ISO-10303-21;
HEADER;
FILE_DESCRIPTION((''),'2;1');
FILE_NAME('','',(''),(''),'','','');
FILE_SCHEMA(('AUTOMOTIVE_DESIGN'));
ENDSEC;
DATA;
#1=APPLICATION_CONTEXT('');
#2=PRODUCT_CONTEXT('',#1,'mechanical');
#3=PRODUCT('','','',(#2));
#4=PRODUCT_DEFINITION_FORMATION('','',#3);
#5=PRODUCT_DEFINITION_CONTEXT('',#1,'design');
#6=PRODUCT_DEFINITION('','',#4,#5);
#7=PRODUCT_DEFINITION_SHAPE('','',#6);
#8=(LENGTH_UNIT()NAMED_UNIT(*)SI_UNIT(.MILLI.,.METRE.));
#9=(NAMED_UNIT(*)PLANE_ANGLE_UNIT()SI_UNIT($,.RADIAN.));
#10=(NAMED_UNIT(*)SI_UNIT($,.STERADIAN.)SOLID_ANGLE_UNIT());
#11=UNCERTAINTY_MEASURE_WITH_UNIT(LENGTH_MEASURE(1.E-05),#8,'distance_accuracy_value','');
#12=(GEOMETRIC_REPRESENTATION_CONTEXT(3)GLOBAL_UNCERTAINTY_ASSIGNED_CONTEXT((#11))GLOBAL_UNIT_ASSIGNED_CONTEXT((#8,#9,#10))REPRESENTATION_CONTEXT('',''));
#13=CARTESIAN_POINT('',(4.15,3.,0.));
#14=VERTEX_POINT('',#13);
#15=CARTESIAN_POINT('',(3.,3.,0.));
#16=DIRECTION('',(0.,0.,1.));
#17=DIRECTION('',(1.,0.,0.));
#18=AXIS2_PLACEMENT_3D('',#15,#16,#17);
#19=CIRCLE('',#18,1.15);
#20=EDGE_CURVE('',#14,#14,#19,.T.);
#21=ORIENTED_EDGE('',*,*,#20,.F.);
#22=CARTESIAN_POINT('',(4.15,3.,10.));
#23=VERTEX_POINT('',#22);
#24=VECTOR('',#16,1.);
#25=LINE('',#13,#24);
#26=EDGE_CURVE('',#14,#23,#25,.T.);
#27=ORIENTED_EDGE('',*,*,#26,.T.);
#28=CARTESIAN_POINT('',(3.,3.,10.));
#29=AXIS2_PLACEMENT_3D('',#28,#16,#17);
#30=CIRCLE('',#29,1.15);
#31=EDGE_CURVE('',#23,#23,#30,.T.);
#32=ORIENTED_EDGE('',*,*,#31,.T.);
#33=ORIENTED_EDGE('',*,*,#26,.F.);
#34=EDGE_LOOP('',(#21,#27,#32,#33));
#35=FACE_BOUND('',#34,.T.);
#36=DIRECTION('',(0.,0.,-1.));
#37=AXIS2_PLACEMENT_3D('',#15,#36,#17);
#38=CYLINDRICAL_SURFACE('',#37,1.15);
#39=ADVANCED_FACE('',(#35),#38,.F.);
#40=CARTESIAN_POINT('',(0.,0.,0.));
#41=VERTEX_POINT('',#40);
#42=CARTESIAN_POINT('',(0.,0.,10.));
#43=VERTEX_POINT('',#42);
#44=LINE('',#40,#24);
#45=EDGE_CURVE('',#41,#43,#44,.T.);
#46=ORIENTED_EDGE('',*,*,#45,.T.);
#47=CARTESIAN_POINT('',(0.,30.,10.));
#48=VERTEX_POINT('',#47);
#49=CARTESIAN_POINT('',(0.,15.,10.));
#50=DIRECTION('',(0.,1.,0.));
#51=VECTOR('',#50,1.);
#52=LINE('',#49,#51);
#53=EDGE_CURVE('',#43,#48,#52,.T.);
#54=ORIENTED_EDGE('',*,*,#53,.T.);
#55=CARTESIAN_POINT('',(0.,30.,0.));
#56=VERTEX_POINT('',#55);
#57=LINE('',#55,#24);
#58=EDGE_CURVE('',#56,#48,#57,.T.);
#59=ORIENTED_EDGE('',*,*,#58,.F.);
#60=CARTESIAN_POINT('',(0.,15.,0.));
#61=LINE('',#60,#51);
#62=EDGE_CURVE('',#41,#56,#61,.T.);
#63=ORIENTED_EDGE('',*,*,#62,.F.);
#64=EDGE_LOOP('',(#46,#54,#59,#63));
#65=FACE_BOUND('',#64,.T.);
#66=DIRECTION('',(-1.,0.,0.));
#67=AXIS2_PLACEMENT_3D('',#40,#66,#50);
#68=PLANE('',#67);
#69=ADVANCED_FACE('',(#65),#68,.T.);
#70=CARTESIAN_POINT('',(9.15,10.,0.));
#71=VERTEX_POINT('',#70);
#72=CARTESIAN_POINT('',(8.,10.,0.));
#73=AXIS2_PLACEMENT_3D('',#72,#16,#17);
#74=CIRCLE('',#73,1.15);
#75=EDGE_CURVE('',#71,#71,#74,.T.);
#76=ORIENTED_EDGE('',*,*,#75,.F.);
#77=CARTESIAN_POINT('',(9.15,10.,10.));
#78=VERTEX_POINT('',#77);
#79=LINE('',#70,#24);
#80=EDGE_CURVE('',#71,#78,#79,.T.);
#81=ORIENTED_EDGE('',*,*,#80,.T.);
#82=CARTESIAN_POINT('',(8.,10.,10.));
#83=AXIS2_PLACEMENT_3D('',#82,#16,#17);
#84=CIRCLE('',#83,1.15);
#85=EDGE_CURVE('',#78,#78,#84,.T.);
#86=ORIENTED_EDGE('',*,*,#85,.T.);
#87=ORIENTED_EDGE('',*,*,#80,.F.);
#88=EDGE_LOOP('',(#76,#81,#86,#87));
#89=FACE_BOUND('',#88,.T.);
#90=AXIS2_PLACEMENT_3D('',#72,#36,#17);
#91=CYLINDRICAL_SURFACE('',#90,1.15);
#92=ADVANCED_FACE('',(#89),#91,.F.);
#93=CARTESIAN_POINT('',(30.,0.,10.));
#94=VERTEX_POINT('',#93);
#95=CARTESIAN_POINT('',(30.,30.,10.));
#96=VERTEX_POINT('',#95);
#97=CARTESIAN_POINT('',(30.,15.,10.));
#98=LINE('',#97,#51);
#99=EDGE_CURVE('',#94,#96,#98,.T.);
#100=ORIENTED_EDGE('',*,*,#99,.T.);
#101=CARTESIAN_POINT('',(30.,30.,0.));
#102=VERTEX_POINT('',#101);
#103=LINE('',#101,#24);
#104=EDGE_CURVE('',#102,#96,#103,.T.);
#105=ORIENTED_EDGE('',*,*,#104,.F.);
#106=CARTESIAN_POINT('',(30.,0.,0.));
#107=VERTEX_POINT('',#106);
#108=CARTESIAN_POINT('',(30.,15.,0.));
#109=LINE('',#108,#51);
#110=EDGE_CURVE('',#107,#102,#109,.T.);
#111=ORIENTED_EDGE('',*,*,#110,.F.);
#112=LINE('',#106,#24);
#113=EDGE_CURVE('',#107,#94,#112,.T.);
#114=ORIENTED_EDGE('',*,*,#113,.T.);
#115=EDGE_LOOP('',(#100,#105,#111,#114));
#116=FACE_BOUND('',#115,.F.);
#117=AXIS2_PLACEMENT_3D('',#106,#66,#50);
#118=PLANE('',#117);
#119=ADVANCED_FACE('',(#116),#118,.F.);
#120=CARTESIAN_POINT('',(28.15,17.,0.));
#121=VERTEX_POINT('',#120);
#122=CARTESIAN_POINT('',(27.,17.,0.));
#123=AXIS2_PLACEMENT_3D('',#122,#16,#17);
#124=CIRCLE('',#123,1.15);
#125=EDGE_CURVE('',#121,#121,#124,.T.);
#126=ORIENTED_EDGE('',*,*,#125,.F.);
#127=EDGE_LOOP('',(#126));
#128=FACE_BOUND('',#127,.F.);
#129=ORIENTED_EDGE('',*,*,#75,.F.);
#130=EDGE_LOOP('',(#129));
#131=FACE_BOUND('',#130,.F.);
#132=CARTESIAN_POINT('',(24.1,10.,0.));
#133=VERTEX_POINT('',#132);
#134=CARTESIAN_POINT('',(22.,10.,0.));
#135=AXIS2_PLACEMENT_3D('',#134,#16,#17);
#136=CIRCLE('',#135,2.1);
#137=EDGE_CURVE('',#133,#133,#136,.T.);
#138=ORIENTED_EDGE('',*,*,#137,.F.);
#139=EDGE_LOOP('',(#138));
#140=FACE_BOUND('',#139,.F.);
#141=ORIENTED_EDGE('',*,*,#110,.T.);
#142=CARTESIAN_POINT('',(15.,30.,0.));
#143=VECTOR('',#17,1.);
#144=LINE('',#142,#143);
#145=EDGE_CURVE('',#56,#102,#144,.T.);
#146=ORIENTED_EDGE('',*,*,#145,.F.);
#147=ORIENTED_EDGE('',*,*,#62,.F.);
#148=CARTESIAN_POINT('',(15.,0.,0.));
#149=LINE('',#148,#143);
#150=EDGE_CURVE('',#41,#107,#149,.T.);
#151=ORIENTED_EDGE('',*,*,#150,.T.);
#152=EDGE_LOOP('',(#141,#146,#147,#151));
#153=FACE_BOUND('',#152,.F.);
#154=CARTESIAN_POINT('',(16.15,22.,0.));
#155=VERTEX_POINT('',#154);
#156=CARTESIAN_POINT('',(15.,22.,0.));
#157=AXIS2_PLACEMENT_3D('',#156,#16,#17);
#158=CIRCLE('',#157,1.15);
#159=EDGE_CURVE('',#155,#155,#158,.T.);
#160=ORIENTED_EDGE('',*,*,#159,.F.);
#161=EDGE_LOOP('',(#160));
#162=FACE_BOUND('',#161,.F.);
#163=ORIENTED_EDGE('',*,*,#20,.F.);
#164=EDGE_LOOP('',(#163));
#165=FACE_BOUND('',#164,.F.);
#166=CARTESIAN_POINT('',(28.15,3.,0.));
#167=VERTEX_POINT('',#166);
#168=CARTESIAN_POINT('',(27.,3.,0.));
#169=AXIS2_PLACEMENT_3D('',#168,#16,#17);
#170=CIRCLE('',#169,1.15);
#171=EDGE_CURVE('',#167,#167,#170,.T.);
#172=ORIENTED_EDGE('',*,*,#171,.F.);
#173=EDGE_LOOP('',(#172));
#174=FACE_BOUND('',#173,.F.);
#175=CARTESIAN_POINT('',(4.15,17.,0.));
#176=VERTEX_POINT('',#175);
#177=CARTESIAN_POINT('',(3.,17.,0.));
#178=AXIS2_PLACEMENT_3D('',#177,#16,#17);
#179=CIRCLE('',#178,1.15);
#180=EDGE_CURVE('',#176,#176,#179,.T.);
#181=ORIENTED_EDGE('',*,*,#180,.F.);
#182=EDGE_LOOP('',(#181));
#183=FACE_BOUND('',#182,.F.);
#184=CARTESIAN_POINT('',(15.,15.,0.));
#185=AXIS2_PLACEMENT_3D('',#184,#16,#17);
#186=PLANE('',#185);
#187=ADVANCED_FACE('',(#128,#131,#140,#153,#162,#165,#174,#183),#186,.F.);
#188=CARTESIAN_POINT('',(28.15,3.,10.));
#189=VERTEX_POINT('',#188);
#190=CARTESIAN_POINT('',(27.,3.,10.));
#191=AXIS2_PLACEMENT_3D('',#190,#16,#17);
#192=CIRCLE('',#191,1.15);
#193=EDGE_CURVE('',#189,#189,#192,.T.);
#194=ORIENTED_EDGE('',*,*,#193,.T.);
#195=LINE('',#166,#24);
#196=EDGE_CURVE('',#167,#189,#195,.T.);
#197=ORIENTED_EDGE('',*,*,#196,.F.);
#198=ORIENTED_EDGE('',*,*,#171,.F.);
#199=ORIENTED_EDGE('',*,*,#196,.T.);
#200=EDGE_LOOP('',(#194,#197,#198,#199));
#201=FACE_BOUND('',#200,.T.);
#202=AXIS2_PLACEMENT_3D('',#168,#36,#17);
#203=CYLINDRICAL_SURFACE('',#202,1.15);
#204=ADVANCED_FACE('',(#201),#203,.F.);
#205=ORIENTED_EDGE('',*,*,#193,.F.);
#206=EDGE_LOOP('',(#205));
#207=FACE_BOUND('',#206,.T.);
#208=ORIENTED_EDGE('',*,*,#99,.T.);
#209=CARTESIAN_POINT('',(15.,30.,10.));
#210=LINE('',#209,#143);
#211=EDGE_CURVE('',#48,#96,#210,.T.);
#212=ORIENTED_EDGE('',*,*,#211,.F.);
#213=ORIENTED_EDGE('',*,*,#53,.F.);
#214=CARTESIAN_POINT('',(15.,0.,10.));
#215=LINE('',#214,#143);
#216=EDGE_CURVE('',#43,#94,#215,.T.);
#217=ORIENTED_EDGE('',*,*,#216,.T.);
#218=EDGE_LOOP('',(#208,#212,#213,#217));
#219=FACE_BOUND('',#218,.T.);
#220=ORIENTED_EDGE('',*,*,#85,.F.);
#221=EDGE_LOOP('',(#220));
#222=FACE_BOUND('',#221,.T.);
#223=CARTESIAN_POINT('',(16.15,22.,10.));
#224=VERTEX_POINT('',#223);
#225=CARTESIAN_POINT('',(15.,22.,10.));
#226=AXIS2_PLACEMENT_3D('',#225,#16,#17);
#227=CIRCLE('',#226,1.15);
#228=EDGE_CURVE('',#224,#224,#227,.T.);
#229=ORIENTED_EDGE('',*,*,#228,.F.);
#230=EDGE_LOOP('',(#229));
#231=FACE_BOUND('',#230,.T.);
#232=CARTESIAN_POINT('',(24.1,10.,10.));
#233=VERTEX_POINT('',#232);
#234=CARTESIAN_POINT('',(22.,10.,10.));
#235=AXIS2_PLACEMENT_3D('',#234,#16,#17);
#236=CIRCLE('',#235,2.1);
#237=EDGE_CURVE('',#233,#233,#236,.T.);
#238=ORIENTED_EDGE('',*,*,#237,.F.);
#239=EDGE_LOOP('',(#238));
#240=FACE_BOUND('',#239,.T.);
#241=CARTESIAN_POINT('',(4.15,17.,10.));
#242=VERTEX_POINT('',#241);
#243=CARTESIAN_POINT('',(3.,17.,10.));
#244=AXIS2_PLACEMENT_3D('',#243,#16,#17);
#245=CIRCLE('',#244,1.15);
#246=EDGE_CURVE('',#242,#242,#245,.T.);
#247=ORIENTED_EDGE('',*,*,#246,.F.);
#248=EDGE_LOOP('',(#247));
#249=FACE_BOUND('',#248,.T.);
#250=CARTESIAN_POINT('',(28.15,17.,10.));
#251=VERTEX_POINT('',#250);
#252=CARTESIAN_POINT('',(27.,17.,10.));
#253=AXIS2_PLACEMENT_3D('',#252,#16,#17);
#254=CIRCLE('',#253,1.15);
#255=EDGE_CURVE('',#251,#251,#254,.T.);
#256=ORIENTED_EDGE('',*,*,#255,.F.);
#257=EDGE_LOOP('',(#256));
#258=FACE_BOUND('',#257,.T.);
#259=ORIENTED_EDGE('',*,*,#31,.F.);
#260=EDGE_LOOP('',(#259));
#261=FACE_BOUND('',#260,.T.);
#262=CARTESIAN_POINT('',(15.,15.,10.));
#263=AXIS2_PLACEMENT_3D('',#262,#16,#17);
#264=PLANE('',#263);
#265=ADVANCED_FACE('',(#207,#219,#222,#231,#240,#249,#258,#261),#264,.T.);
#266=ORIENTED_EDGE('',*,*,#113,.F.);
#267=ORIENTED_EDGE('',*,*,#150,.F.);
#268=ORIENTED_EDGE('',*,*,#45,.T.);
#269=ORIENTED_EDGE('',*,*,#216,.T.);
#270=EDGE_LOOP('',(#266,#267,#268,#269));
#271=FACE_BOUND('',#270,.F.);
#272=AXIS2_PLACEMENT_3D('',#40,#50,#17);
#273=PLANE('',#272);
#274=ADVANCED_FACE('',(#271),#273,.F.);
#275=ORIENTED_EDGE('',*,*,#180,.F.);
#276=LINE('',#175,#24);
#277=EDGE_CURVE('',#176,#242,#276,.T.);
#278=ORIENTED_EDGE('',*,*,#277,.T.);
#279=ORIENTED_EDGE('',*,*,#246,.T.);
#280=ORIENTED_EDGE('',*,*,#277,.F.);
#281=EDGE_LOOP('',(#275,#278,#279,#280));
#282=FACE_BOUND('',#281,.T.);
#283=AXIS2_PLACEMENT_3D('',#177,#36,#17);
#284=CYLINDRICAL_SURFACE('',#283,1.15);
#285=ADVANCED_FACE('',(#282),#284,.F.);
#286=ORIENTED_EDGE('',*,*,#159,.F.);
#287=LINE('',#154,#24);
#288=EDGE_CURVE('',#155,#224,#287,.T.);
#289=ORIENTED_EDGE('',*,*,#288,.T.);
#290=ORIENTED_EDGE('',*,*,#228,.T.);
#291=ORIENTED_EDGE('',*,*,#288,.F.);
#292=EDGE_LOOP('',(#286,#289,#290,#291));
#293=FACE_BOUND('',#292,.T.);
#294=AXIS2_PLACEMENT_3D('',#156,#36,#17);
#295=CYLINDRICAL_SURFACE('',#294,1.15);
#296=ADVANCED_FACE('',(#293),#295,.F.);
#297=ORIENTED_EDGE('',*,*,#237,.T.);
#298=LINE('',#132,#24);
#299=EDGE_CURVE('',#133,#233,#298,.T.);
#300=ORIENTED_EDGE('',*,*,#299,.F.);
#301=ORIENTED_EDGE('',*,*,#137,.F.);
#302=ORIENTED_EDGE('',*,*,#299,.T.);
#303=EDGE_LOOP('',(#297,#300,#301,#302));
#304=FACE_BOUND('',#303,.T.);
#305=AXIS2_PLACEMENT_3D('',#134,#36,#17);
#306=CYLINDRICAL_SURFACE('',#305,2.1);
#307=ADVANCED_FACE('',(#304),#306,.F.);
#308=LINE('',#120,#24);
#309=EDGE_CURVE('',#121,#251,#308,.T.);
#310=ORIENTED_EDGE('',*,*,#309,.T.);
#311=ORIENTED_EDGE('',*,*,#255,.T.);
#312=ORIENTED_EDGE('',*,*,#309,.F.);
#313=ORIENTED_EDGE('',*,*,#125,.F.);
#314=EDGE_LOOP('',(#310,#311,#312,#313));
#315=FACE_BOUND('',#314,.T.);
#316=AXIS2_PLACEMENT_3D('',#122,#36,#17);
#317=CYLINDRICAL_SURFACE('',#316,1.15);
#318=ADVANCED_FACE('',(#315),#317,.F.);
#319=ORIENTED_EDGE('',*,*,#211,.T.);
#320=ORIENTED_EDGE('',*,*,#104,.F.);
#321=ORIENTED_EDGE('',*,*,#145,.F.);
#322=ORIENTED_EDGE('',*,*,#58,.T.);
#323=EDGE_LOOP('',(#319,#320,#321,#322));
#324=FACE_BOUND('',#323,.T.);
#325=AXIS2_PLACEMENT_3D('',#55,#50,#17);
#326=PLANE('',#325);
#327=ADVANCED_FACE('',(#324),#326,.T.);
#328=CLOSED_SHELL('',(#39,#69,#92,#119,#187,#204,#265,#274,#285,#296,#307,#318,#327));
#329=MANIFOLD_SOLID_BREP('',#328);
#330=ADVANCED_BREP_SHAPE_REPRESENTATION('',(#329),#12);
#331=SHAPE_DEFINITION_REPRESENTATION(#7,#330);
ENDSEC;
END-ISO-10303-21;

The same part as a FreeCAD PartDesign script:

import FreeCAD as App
import Part
import Sketcher

V = App.Vector
Q = App.Units.Quantity


def add_polygon(sketch, points):
    """Adds a closed chain of lines whose ends are joined by coincident constraints."""
    first, n = sketch.GeometryCount, len(points)
    for a, b in zip(points, points[1:] + points[:1]):
        sketch.addGeometry(Part.LineSegment(App.Vector(*a, 0), App.Vector(*b, 0)), False)
    for i in range(n):
        sketch.addConstraint(Sketcher.Constraint("Coincident", first + i, 2, first + (i + 1) % n, 1))

doc = App.newDocument("Part")
body = doc.addObject("PartDesign::Body", "Body")

sketch1 = body.newObject("Sketcher::SketchObject", "Sketch")
sketch1.AttachmentSupport = (doc.getObject("XY_Plane"), [""])
sketch1.MapMode = "FlatFace"
add_polygon(sketch1, [(0, 30), (0, 0), (30, 0), (30, 30)])
sketch1.addGeometry(Part.Circle(V(3, 3, 0), V(0, 0, 1), 1.1), False)
sketch1.addGeometry(Part.Circle(V(8, 10, 0), V(0, 0, 1), 1.1), False)
sketch1.addGeometry(Part.Circle(V(27, 3, 0), V(0, 0, 1), 1.1), False)
sketch1.addGeometry(Part.Circle(V(22, 10, 0), V(0, 0, 1), 2.1), False)
sketch1.addGeometry(Part.Circle(V(3, 17, 0), V(0, 0, 1), 1.1), False)
sketch1.addGeometry(Part.Circle(V(27, 17, 0), V(0, 0, 1), 1.1), False)
sketch1.addGeometry(Part.Circle(V(15, 22, 0), V(0, 0, 1), 1.1), False)
sketch1.addConstraint([
    Sketcher.Constraint("Vertical", 0),
    Sketcher.Constraint("Horizontal", 1),
    Sketcher.Constraint("Vertical", 2),
    Sketcher.Constraint("Horizontal", 3),
    Sketcher.Constraint("Coincident", 0, 2, -1, 1),
    Sketcher.Constraint("Equal", 4, 5),
    Sketcher.Constraint("Equal", 5, 6),
    Sketcher.Constraint("Equal", 6, 8),
    Sketcher.Constraint("Equal", 8, 9),
    Sketcher.Constraint("Equal", 9, 10),
    Sketcher.Constraint("Horizontal", 4, 3, 6, 3),
    Sketcher.Constraint("Horizontal", 5, 3, 7, 3),
    Sketcher.Constraint("Horizontal", 8, 3, 9, 3),
    Sketcher.Constraint("Vertical", 4, 3, 8, 3),
    Sketcher.Constraint("Vertical", 6, 3, 9, 3),
    Sketcher.Constraint("Equal", 3, 0),
    Sketcher.Constraint("Diameter", 4, Q("2.3 mm")),
    Sketcher.Constraint("Diameter", 7, Q("4.2 mm")),
    Sketcher.Constraint("DistanceX", 1, 1, 1, 2, Q("30 mm")),
    Sketcher.Constraint("DistanceX", -1, 1, 4, 3, Q("3 mm")),
    Sketcher.Constraint("DistanceY", -1, 1, 4, 3, Q("3 mm")),
    Sketcher.Constraint("DistanceX", -1, 1, 5, 3, Q("8 mm")),
    Sketcher.Constraint("DistanceY", -1, 1, 5, 3, Q("10 mm")),
    Sketcher.Constraint("DistanceX", -1, 1, 6, 3, Q("27 mm")),
    Sketcher.Constraint("DistanceX", -1, 1, 7, 3, Q("22 mm")),
    Sketcher.Constraint("DistanceY", -1, 1, 8, 3, Q("17 mm")),
    Sketcher.Constraint("DistanceX", -1, 1, 10, 3, Q("15 mm")),
    Sketcher.Constraint("DistanceY", -1, 1, 10, 3, Q("22 mm")),
])
pad1 = body.newObject("PartDesign::Pad", "Pad")
pad1.Profile = sketch1
pad1.Length = 10

doc.recompute()
